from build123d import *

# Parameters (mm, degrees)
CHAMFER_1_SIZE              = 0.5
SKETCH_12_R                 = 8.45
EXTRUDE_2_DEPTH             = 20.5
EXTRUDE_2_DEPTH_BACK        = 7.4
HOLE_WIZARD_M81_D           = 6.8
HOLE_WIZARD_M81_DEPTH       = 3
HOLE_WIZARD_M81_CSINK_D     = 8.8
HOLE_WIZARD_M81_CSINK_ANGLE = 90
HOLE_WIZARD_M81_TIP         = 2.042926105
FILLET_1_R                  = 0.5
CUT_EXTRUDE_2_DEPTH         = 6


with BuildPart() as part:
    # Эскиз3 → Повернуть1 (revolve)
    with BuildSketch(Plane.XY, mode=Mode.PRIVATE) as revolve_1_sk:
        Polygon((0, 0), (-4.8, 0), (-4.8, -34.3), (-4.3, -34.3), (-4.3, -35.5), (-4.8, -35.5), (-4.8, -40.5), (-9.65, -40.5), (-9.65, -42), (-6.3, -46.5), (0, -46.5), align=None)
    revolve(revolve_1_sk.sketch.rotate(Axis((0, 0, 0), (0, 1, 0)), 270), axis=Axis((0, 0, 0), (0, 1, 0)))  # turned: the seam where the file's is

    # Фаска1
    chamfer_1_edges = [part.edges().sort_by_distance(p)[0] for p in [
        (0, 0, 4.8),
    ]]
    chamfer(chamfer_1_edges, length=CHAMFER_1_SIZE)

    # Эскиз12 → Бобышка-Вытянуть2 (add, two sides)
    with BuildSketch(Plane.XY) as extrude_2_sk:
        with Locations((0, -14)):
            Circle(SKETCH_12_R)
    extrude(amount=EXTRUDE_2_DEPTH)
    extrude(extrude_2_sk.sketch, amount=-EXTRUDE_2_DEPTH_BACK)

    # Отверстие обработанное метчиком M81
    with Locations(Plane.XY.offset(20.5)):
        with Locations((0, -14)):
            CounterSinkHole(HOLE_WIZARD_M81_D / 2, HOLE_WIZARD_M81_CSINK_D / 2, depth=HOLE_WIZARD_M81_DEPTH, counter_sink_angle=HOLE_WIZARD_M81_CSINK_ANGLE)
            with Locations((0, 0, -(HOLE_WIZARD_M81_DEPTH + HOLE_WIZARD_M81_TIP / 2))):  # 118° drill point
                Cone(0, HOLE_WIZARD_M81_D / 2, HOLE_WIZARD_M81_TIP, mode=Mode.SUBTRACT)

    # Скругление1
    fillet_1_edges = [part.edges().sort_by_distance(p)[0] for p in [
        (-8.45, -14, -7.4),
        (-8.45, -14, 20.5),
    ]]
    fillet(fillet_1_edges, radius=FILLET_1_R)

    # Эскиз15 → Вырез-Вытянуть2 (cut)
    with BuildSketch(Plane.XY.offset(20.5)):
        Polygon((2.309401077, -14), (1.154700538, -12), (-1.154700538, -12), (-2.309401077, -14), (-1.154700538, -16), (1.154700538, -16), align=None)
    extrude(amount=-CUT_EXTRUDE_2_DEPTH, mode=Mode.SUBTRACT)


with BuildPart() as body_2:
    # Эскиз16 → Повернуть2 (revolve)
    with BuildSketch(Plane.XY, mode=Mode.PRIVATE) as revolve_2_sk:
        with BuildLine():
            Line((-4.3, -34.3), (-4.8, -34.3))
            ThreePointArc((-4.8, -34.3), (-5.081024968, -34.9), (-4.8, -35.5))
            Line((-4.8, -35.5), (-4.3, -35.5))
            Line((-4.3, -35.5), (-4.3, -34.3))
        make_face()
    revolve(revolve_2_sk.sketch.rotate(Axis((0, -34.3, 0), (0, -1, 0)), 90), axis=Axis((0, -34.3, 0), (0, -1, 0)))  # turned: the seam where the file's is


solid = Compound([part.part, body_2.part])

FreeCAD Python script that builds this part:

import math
import FreeCAD as App
import Part
import Sketcher
from FreeCAD import Vector
Q = App.Units.Quantity


def edges_at(feature, points):
    """Names of the edges that pass closest to the given points."""
    edges = feature.Shape.Edges
    near = lambda p: min(range(len(edges)), key=lambda i: edges[i].distToShape(Part.Vertex(*p))[0])
    return sorted({f"Edge{near(p) + 1}" for p in points})

doc = App.newDocument("Part")
body = doc.addObject("PartDesign::Body", "Body")

# Sketch on XY plane
sketch1 = body.newObject("Sketcher::SketchObject", "Sketch")
sketch1.AttachmentSupport = (doc.getObject("XY_Plane"), [""])
sketch1.MapMode = "FlatFace"
sketch1.addGeometry([
    Part.LineSegment(Vector(0, 0, 0), Vector(-4.8, 0, 0)),  # 0
    Part.LineSegment(Vector(-4.8, 0, 0), Vector(-4.8, -34.3, 0)),  # 1
    Part.LineSegment(Vector(-4.8, -34.3, 0), Vector(-4.3, -34.3, 0)),  # 2
    Part.LineSegment(Vector(-4.3, -34.3, 0), Vector(-4.3, -35.5, 0)),  # 3
    Part.LineSegment(Vector(-4.3, -35.5, 0), Vector(-4.8, -35.5, 0)),  # 4
    Part.LineSegment(Vector(-4.8, -35.5, 0), Vector(-4.8, -40.5, 0)),  # 5
    Part.LineSegment(Vector(-4.8, -40.5, 0), Vector(-9.7, -40.5, 0)),  # 6
    Part.LineSegment(Vector(-9.7, -40.5, 0), Vector(-9.7, -42, 0)),  # 7
    Part.LineSegment(Vector(-9.7, -42, 0), Vector(-6.3, -46.5, 0)),  # 8
    Part.LineSegment(Vector(-6.3, -46.5, 0), Vector(0, -46.5, 0)),  # 9
    Part.LineSegment(Vector(0, -46.5, 0), Vector(0, 0, 0)),  # 10
], False)
sketch1.addConstraint([
    Sketcher.Constraint("Coincident", 0, 2, 1, 1),
    Sketcher.Constraint("Coincident", 1, 2, 2, 1),
    Sketcher.Constraint("Coincident", 2, 2, 3, 1),
    Sketcher.Constraint("Coincident", 3, 2, 4, 1),
    Sketcher.Constraint("Coincident", 4, 2, 5, 1),
    Sketcher.Constraint("Coincident", 5, 2, 6, 1),
    Sketcher.Constraint("Coincident", 6, 2, 7, 1),
    Sketcher.Constraint("Coincident", 7, 2, 8, 1),
    Sketcher.Constraint("Coincident", 8, 2, 9, 1),
    Sketcher.Constraint("Coincident", 9, 2, 10, 1),
    Sketcher.Constraint("Coincident", 10, 2, 0, 1),
    Sketcher.Constraint("Horizontal", 0),
    Sketcher.Constraint("Vertical", 1),
    Sketcher.Constraint("Horizontal", 2),
    Sketcher.Constraint("Vertical", 3),
    Sketcher.Constraint("Horizontal", 4),
    Sketcher.Constraint("Vertical", 5),
    Sketcher.Constraint("Horizontal", 6),
    Sketcher.Constraint("Vertical", 7),
    Sketcher.Constraint("Horizontal", 9),
    Sketcher.Constraint("Vertical", 10),
    Sketcher.Constraint("Coincident", 10, 2, -1, 1),
    Sketcher.Constraint("Vertical", 1, 2, 4, 2),
    Sketcher.Constraint("DistanceY", 5, 2, 5, 1, Q("5 mm")),
    Sketcher.Constraint("DistanceX", 0, 2, 0, 1, Q("4.8 mm")),
    Sketcher.Constraint("DistanceX", 2, 1, 2, 2, Q("0.5 mm")),
    Sketcher.Constraint("DistanceX", 9, 1, 9, 2, Q("6.3 mm")),
    Sketcher.Constraint("DistanceY", 1, 2, 1, 1, Q("34.3 mm")),
    Sketcher.Constraint("DistanceY", 3, 2, 3, 1, Q("1.2 mm")),
    Sketcher.Constraint("DistanceY", 7, 2, 7, 1, Q("1.5 mm")),
    Sketcher.Constraint("DistanceY", 10, 1, 10, 2, Q("46.5 mm")),
    Sketcher.Constraint("DistanceX", 6, 2, 6, 1, Q("4.85 mm")),
])
revolution = body.newObject("PartDesign::Revolution", "Revolution")
revolution.Profile = sketch1
revolution.ReferenceAxis = (sketch1, ["V_Axis"])
revolution.Angle = 360
doc.recompute()

chamfer = body.newObject("PartDesign::Chamfer", "Chamfer")
chamfer.Base = (revolution, edges_at(revolution, [(0, 0, 4.8)]))
chamfer.Size = 0.5

# Sketch on XY plane
sketch2 = body.newObject("Sketcher::SketchObject", "Sketch001")
sketch2.AttachmentSupport = (doc.getObject("XY_Plane"), [""])
sketch2.MapMode = "FlatFace"
sketch2.addGeometry(Part.Circle(Vector(0, -14, 0), Vector(0, 0, 1), 8), False)
sketch2.addConstraint([
    Sketcher.Constraint("PointOnObject", 0, 3, -2),
    Sketcher.Constraint("Diameter", 0, Q("16.9 mm")),
    Sketcher.Constraint("DistanceY", 0, 3, -1, 1, Q("14 mm")),
])
pad1 = body.newObject("PartDesign::Pad", "Pad")
pad1.Profile = sketch2
pad1.Type = "TwoLengths"
pad1.Length = 20.5
pad1.Length2 = 7.4

# Sketch on XY plane
sketch3 = body.newObject("Sketcher::SketchObject", "Sketch002")
sketch3.AttachmentSupport = (doc.getObject("XY_Plane"), [""])
sketch3.MapMode = "FlatFace"
sketch3.AttachmentOffset = App.Placement(Vector(0, 0, 20.5), App.Rotation())
sketch3.addGeometry(Part.Circle(Vector(0, -14, 0), Vector(0, 0, 1), 3.4), False)
sketch3.addConstraint([
    Sketcher.Constraint("PointOnObject", 0, 3, -2),
    Sketcher.Constraint("Diameter", 0, Q("6.8 mm")),
    Sketcher.Constraint("DistanceY", 0, 3, -1, 1, Q("14 mm")),
])
doc.recompute()
hole = body.newObject("PartDesign::Hole", "Hole")
hole.Profile = sketch3
hole.ThreadType = "None"
hole.Diameter = 6.8
hole.DepthType = "Dimension"
hole.Depth = 3
hole.DrillPoint = "Angled"
hole.DrillPointAngle = 118
hole.HoleCutType = "Countersink"
hole.HoleCutDiameter = 8.8
hole.HoleCutCountersinkAngle = 90
doc.recompute()

fillet = body.newObject("PartDesign::Fillet", "Fillet")
fillet.Base = (hole, edges_at(hole, [(-8.45, -14, -7.4), (-8.45, -14, 20.5)]))
fillet.Radius = 0.5

# Sketch on XY plane
sketch4 = body.newObject("Sketcher::SketchObject", "Sketch003")
sketch4.AttachmentSupport = (doc.getObject("XY_Plane"), [""])
sketch4.MapMode = "FlatFace"
sketch4.AttachmentOffset = App.Placement(Vector(0, 0, 20.5), App.Rotation())
sketch4.addGeometry([
    Part.LineSegment(Vector(2.3, -14, 0), Vector(1.2, -12, 0)),  # 0
    Part.LineSegment(Vector(1.2, -12, 0), Vector(-1.2, -12, 0)),  # 1
    Part.LineSegment(Vector(-1.2, -12, 0), Vector(-2.3, -14, 0)),  # 2
    Part.LineSegment(Vector(-2.3, -14, 0), Vector(-1.2, -16, 0)),  # 3
    Part.LineSegment(Vector(-1.2, -16, 0), Vector(1.2, -16, 0)),  # 4
    Part.LineSegment(Vector(1.2, -16, 0), Vector(2.3, -14, 0)),  # 5
], False)
sketch4.addConstraint([
    Sketcher.Constraint("Coincident", 0, 2, 1, 1),
    Sketcher.Constraint("Coincident", 1, 2, 2, 1),
    Sketcher.Constraint("Coincident", 2, 2, 3, 1),
    Sketcher.Constraint("Coincident", 3, 2, 4, 1),
    Sketcher.Constraint("Coincident", 4, 2, 5, 1),
    Sketcher.Constraint("Coincident", 5, 2, 0, 1),
    Sketcher.Constraint("Horizontal", 1),
    Sketcher.Constraint("Horizontal", 4),
    Sketcher.Constraint("Symmetric", 2, 2, 5, 2, -2),
    Sketcher.Constraint("Parallel", 0, 3),
    Sketcher.Constraint("Parallel", 2, 5),
    Sketcher.Constraint("Vertical", 1, 2, 3, 2),
    Sketcher.Constraint("Vertical", 0, 2, 4, 2),
    Sketcher.Constraint("Angle", 0, Q("120 deg")),
    Sketcher.Constraint("DistanceY", 0, 2, -1, 1, Q("12 mm")),
    Sketcher.Constraint("DistanceY", 2, 2, -1, 1, Q("14 mm")),
    Sketcher.Constraint("DistanceX", 1, 2, 1, 1, Q("2.309401 mm")),
])
pocket1 = body.newObject("PartDesign::Pocket", "Pocket")
pocket1.Profile = sketch4
pocket1.Length = 6
body2 = doc.addObject("PartDesign::Body", "Body001")

# Sketch on XY plane
sketch5 = body2.newObject("Sketcher::SketchObject", "Sketch004")
sketch5.AttachmentSupport = (doc.getObject("XY_Plane001"), [""])
sketch5.MapMode = "FlatFace"
sketch5.addGeometry([
    Part.LineSegment(Vector(-4.3, -34.3, 0), Vector(-4.8, -34.3, 0)),
    Part.ArcOfCircle(Part.Circle(Vector(-4.3, -34.9, 0), Vector(0, 0, 1), 0.8), math.radians(130), math.radians(230)),
    Part.LineSegment(Vector(-4.8, -35.5, 0), Vector(-4.3, -35.5, 0)),
    Part.LineSegment(Vector(-4.3, -35.5, 0), Vector(-4.3, -34.3, 0)),
], False)
sketch5.addConstraint([
    Sketcher.Constraint("Coincident", 0, 2, 1, 1),
    Sketcher.Constraint("Coincident", 1, 2, 2, 1),
    Sketcher.Constraint("Coincident", 2, 2, 3, 1),
    Sketcher.Constraint("Coincident", 3, 2, 0, 1),
    Sketcher.Constraint("Horizontal", 0),
    Sketcher.Constraint("Horizontal", 2),
    Sketcher.Constraint("Vertical", 3),
    Sketcher.Constraint("Vertical", 0, 2, 1, 2),
    Sketcher.Constraint("Vertical", 1, 3, 2, 2),
    Sketcher.Constraint("DistanceX", 0, 2, 0, 1, Q("0.5 mm")),
    Sketcher.Constraint("DistanceY", 3, 1, 3, 2, Q("1.2 mm")),
    Sketcher.Constraint("DistanceX", 1, 3, -1, 1, Q("4.3 mm")),
    Sketcher.Constraint("DistanceY", 1, 3, -1, 1, Q("34.9 mm")),
])
revolution2 = body2.newObject("PartDesign::Revolution", "Revolution001")
revolution2.Profile = sketch5
revolution2.ReferenceAxis = (sketch5, ["V_Axis"])
revolution2.Angle = 360

doc.recompute()
